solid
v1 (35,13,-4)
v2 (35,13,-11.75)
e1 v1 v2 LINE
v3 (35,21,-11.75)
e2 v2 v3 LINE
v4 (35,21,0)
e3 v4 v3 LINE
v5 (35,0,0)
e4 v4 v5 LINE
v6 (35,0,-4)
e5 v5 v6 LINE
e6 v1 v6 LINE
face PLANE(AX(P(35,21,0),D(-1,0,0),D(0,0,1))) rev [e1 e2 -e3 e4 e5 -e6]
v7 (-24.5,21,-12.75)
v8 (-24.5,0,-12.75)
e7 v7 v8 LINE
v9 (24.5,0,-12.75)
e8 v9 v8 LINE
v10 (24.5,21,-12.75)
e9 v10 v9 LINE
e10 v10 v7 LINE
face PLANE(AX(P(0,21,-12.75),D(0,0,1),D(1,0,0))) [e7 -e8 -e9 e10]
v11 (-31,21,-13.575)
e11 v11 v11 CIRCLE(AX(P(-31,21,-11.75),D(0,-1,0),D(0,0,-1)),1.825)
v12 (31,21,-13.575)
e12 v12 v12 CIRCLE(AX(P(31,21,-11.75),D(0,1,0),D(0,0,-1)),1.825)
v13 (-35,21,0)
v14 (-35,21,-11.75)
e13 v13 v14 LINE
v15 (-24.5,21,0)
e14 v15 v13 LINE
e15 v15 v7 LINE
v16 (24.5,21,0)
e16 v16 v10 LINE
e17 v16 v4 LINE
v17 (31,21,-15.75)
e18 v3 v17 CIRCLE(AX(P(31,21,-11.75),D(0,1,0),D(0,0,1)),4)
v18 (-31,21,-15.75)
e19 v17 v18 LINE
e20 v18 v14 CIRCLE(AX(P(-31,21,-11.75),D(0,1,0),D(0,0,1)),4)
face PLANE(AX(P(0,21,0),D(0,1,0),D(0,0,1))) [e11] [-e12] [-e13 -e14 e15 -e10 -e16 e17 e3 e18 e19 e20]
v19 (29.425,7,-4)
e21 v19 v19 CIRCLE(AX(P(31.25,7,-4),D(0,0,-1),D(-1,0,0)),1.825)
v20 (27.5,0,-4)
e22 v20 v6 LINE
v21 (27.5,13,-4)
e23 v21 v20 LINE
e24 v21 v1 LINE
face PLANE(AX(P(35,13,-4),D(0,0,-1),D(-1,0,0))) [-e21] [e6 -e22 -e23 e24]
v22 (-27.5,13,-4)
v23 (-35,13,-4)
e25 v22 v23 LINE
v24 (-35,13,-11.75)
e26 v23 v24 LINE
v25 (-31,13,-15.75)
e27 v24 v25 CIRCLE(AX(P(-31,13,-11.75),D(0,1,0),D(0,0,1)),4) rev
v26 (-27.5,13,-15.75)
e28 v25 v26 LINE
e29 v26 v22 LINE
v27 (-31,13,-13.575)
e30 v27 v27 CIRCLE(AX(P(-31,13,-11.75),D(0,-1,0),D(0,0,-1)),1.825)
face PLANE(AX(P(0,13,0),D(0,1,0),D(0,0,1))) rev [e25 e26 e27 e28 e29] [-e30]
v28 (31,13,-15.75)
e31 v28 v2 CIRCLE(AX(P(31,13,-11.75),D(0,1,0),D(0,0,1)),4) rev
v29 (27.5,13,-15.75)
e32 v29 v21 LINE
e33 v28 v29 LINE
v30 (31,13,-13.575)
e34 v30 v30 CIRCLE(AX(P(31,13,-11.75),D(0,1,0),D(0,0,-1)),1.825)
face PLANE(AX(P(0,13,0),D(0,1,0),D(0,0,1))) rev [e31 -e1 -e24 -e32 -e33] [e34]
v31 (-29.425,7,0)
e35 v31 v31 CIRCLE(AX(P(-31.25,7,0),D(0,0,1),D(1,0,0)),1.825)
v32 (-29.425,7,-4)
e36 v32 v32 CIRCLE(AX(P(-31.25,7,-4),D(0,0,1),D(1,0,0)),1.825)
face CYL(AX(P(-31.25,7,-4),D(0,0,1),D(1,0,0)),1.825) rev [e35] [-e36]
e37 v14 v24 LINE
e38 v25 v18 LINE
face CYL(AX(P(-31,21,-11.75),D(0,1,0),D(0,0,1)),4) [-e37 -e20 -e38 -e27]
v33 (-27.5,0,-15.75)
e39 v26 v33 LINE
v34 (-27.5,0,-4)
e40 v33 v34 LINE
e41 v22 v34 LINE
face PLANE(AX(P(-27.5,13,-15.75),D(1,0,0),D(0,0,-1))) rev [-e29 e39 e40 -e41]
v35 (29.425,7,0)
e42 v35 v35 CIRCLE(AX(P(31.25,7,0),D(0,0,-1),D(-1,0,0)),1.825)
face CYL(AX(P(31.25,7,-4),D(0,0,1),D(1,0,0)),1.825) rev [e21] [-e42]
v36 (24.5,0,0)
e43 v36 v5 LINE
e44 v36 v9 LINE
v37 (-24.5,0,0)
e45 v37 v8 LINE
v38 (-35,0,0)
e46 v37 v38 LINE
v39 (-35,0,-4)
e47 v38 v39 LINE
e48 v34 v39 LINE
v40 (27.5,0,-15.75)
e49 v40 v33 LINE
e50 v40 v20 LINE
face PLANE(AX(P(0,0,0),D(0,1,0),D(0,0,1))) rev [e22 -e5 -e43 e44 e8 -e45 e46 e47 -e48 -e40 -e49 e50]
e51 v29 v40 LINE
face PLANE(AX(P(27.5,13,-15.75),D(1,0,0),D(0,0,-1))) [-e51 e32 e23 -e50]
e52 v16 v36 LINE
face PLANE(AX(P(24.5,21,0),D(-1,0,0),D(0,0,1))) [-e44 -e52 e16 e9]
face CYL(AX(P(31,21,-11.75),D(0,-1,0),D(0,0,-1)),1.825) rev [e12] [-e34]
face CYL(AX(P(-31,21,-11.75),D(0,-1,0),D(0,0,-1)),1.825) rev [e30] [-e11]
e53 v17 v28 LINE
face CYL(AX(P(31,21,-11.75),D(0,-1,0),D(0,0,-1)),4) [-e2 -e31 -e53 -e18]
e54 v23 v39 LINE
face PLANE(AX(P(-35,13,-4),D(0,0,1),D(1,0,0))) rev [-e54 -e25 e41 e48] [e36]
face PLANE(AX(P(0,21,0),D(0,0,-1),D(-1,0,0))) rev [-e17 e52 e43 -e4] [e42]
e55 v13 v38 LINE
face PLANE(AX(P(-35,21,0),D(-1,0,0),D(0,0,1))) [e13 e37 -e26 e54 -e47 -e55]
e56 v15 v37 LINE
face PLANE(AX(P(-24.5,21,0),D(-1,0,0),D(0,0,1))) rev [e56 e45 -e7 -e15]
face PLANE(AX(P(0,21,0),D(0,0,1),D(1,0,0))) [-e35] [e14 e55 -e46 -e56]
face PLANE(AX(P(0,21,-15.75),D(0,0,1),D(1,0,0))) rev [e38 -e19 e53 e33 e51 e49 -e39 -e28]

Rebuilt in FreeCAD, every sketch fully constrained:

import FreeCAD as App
import Part
import Sketcher


def edges_at(feature, points):
    """Names of the edges that pass closest to the given points."""
    edges = feature.Shape.Edges
    near = lambda p: min(range(len(edges)), key=lambda i: edges[i].distToShape(Part.Vertex(*p))[0])
    return sorted({f"Edge{near(p) + 1}" for p in points})

doc = App.newDocument("Part")
params = doc.addObject("Spreadsheet::Sheet", "Params")
for row, (alias, value) in enumerate([
    ("sketch1_width", "35 mm"),
    ("sketch1_height", "3 mm"),
    ("sketch1_width2", "24.5 mm"),
    ("sketch1_height2", "12.75 mm"),
    ("pad1_length", "21 mm"),
    ("sketch2_diameter", "3.65 mm"),
    ("pocket1_length", "4 mm"),
    ("sketch3_width", "7.5 mm"),
    ("sketch3_height", "11.75 mm"),
    ("pocket2_length", "13 mm"),
    ("fillet_radius", "4 mm"),
    ("sketch4_diameter", "3.65 mm"),
    ("fillet2_radius", "4 mm"),
], start=1):
    params.set(f"A{row}", alias)
    params.set(f"B{row}", "=" + value)
    params.setAlias(f"B{row}", alias)

body = doc.addObject("PartDesign::Body", "Body")

sketch1 = body.newObject("Sketcher::SketchObject", "Sketch")
sketch1.AttachmentSupport = (doc.getObject("XZ_Plane"), [""])
sketch1.MapMode = "FlatFace"
sketch1.addGeometry(Part.LineSegment(App.Vector(-24.5, 0, 0), App.Vector(-24.5, -12.75, 0)), False)
sketch1.addGeometry(Part.LineSegment(App.Vector(-24.5, -12.75, 0), App.Vector(0, -12.75, 0)), False)
sketch1.addGeometry(Part.LineSegment(App.Vector(0, -12.75, 0), App.Vector(0, -15.75, 0)), False)
sketch1.addGeometry(Part.LineSegment(App.Vector(0, -15.75, 0), App.Vector(-35, -15.75, 0)), False)
sketch1.addGeometry(Part.LineSegment(App.Vector(-35, -15.75, 0), App.Vector(-35, 0, 0)), False)
sketch1.addGeometry(Part.LineSegment(App.Vector(-35, 0, 0), App.Vector(-24.5, 0, 0)), False)
sketch1.addConstraint(Sketcher.Constraint("Coincident", 0, 2, 1, 1))
sketch1.addConstraint(Sketcher.Constraint("Coincident", 1, 2, 2, 1))
sketch1.addConstraint(Sketcher.Constraint("Coincident", 2, 2, 3, 1))
sketch1.addConstraint(Sketcher.Constraint("Coincident", 3, 2, 4, 1))
sketch1.addConstraint(Sketcher.Constraint("Coincident", 4, 2, 5, 1))
sketch1.addConstraint(Sketcher.Constraint("Coincident", 5, 2, 0, 1))
sketch1.addConstraint(Sketcher.Constraint("Vertical", 0))
sketch1.addConstraint(Sketcher.Constraint("Horizontal", 1))
sketch1.addConstraint(Sketcher.Constraint("Vertical", 2))
sketch1.addConstraint(Sketcher.Constraint("Horizontal", 3))
sketch1.addConstraint(Sketcher.Constraint("Vertical", 4))
sketch1.addConstraint(Sketcher.Constraint("Horizontal", 5))
sketch1.addConstraint(Sketcher.Constraint("PointOnObject", 1, 2, -2))
sketch1.addConstraint(Sketcher.Constraint("PointOnObject", 4, 2, -1))
sketch1.addConstraint(Sketcher.Constraint("DistanceX", 3, 2, 3, 1, 35.0))
sketch1.addConstraint(Sketcher.Constraint("DistanceY", 2, 2, 2, 1, 3.0))
sketch1.addConstraint(Sketcher.Constraint("DistanceX", 1, 1, 1, 2, 24.5))
sketch1.addConstraint(Sketcher.Constraint("DistanceY", 0, 2, 0, 1, 12.75))
sketch1.setExpression("Constraints[14]", "Params.sketch1_width")
sketch1.setExpression("Constraints[15]", "Params.sketch1_height")
sketch1.setExpression("Constraints[16]", "Params.sketch1_width2")
sketch1.setExpression("Constraints[17]", "Params.sketch1_height2")
pad1 = body.newObject("PartDesign::Pad", "Pad")
pad1.Profile = sketch1
pad1.setExpression("Length", "Params.pad1_length")
pad1.Reversed = True

sketch2 = body.newObject("Sketcher::SketchObject", "Sketch001")
sketch2.AttachmentSupport = (doc.getObject("XY_Plane"), [""])
sketch2.MapMode = "FlatFace"
sketch2.addGeometry(Part.Circle(App.Vector(-31.25, 7, 0), App.Vector(0, 0, 1), 1.825), False)
sketch2.addConstraint(Sketcher.Constraint("Diameter", 0, 3.65))
sketch2.addConstraint(Sketcher.Constraint("DistanceY", -1, 1, 0, 3, 7.0))
sketch2.addConstraint(Sketcher.Constraint("DistanceX", 0, 3, -1, 1, 31.25))
sketch2.setExpression("Constraints[0]", "Params.sketch2_diameter")
pocket1 = body.newObject("PartDesign::Pocket", "Pocket")
pocket1.Profile = sketch2
pocket1.setExpression("Length", "Params.pocket1_length")

sketch3 = body.newObject("Sketcher::SketchObject", "Sketch002")
sketch3.AttachmentSupport = (doc.getObject("XZ_Plane"), [""])
sketch3.MapMode = "FlatFace"
sketch3.addGeometry(Part.LineSegment(App.Vector(-35, -4, 0), App.Vector(-35, -15.75, 0)), False)
sketch3.addGeometry(Part.LineSegment(App.Vector(-35, -15.75, 0), App.Vector(-27.5, -15.75, 0)), False)
sketch3.addGeometry(Part.LineSegment(App.Vector(-27.5, -15.75, 0), App.Vector(-27.5, -4, 0)), False)
sketch3.addGeometry(Part.LineSegment(App.Vector(-27.5, -4, 0), App.Vector(-35, -4, 0)), False)
sketch3.addConstraint(Sketcher.Constraint("Coincident", 0, 2, 1, 1))
sketch3.addConstraint(Sketcher.Constraint("Coincident", 1, 2, 2, 1))
sketch3.addConstraint(Sketcher.Constraint("Coincident", 2, 2, 3, 1))
sketch3.addConstraint(Sketcher.Constraint("Coincident", 3, 2, 0, 1))
sketch3.addConstraint(Sketcher.Constraint("Vertical", 0))
sketch3.addConstraint(Sketcher.Constraint("Horizontal", 1))
sketch3.addConstraint(Sketcher.Constraint("Vertical", 2))
sketch3.addConstraint(Sketcher.Constraint("Horizontal", 3))
sketch3.addConstraint(Sketcher.Constraint("DistanceX", 1, 1, 1, 2, 7.5))
sketch3.addConstraint(Sketcher.Constraint("DistanceX", 0, 2, -1, 1, 35.0))
sketch3.addConstraint(Sketcher.Constraint("DistanceY", 2, 2, -1, 1, 4.0))
sketch3.addConstraint(Sketcher.Constraint("DistanceY", 0, 2, 0, 1, 11.75))
sketch3.setExpression("Constraints[8]", "Params.sketch3_width")
sketch3.setExpression("Constraints[11]", "Params.sketch3_height")
pocket2 = body.newObject("PartDesign::Pocket", "Pocket001")
pocket2.Profile = sketch3
pocket2.setExpression("Length", "Params.pocket2_length")
doc.recompute()

fillet = body.newObject("PartDesign::Fillet", "Fillet")
fillet.Base = (pocket2, edges_at(pocket2, [(-35, 17, -15.75)]))
fillet.setExpression("Radius", "Params.fillet_radius")

sketch4 = body.newObject("Sketcher::SketchObject", "Sketch003")
sketch4.AttachmentSupport = (doc.getObject("XZ_Plane"), [""])
sketch4.MapMode = "FlatFace"
sketch4.AttachmentOffset = App.Placement(App.Vector(0, 0, -13), App.Rotation())
sketch4.addGeometry(Part.Circle(App.Vector(-31, -11.75, 0), App.Vector(0, 0, 1), 1.825), False)
sketch4.addConstraint(Sketcher.Constraint("Diameter", 0, 3.65))
sketch4.addConstraint(Sketcher.Constraint("DistanceX", 0, 3, -1, 1, 31.0))
sketch4.addConstraint(Sketcher.Constraint("DistanceY", 0, 3, -1, 1, 11.75))
sketch4.setExpression("Constraints[0]", "Params.sketch4_diameter")
pocket3 = body.newObject("PartDesign::Pocket", "Pocket002")
pocket3.Profile = sketch4
pocket3.Type = "ThroughAll"
doc.recompute()

mirrored = body.newObject("PartDesign::Mirrored", "Mirrored")
mirrored.Originals = [pad1, pocket1, pocket2, pocket3]
mirrored.MirrorPlane = (doc.getObject("YZ_Plane"), [""])
body.Tip = mirrored
doc.recompute()

fillet2 = body.newObject("PartDesign::Fillet", "Fillet001")
fillet2.Base = (mirrored, edges_at(mirrored, [(35, 17, -15.75)]))
fillet2.setExpression("Radius", "Params.fillet2_radius")

doc.recompute()
